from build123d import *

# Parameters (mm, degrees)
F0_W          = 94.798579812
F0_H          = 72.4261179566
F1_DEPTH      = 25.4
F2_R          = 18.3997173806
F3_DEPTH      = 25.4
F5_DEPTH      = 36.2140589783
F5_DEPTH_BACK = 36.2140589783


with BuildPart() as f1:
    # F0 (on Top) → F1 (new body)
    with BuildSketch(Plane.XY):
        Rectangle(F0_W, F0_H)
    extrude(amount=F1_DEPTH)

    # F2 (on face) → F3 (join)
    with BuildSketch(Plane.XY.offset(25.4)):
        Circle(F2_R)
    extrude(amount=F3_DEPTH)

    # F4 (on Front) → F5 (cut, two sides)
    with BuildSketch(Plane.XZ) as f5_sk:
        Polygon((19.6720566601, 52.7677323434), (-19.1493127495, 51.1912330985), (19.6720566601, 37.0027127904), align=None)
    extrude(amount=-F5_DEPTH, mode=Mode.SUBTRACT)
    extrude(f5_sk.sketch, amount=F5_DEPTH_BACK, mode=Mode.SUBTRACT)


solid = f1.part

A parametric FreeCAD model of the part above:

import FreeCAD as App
import Part
import Sketcher
from FreeCAD import Vector
Q = App.Units.Quantity


def add_polygon(sketch, points):
    """Adds a closed chain of lines whose ends are joined by coincident constraints."""
    first, n = sketch.GeometryCount, len(points)
    for a, b in zip(points, points[1:] + points[:1]):
        sketch.addGeometry(Part.LineSegment(App.Vector(*a, 0), App.Vector(*b, 0)), False)
    for i in range(n):
        sketch.addConstraint(Sketcher.Constraint("Coincident", first + i, 2, first + (i + 1) % n, 1))

doc = App.newDocument("Part")
body = doc.addObject("PartDesign::Body", "Body")

sketch1 = body.newObject("Sketcher::SketchObject", "Sketch")
sketch1.AttachmentSupport = (doc.getObject("XY_Plane"), [""])
sketch1.MapMode = "FlatFace"
add_polygon(sketch1, [(-47.39929, 36.213059), (-47.39929, -36.213059), (47.39929, -36.213059), (47.39929, 36.213059)])
sketch1.addConstraint([
    Sketcher.Constraint("Vertical", 0),
    Sketcher.Constraint("Horizontal", 1),
    Sketcher.Constraint("Vertical", 2),
    Sketcher.Constraint("Horizontal", 3),
    Sketcher.Constraint("Symmetric", 0, 2, 2, 2, -1, 1),
    Sketcher.Constraint("DistanceX", 1, 1, 1, 2, 94.79858),
    Sketcher.Constraint("DistanceY", 0, 2, 0, 1, 72.426118),
])
pad1 = body.newObject("PartDesign::Pad", "Pad")
pad1.Profile = sketch1
pad1.Length = Q("1 in")

sketch2 = body.newObject("Sketcher::SketchObject", "Sketch001")
sketch2.AttachmentSupport = (doc.getObject("XY_Plane"), [""])
sketch2.MapMode = "FlatFace"
sketch2.AttachmentOffset = App.Placement(Vector(0, 0, 1 * 25.4), App.Rotation())
sketch2.addGeometry(Part.Circle(Vector(0, 0, 0), Vector(0, 0, 1), 18.399717), False)
sketch2.addConstraint([
    Sketcher.Constraint("Coincident", 0, 3, -1, 1),
    Sketcher.Constraint("Diameter", 0, 36.799435),
])
pad2 = body.newObject("PartDesign::Pad", "Pad001")
pad2.Profile = sketch2
pad2.Length = Q("1 in")

sketch3 = body.newObject("Sketcher::SketchObject", "Sketch002")
sketch3.AttachmentSupport = (doc.getObject("XZ_Plane"), [""])
sketch3.MapMode = "FlatFace"
add_polygon(sketch3, [(19.672057, 52.767732), (-19.149313, 51.191233), (19.672057, 37.002713)])
sketch3.addConstraint([
    Sketcher.Constraint("Vertical", 2),
    Sketcher.Constraint("DistanceY", 2, 1, 2, 2, 15.76502),
    Sketcher.Constraint("DistanceY", 0, 2, 2, 2, 1.576499),
    Sketcher.Constraint("Distance", 1, 41.332951),
    Sketcher.Constraint("DistanceX", 0, 2, -1, 1, 19.149313),
    Sketcher.Constraint("DistanceY", -1, 1, 0, 2, 51.191233),
])
pocket1 = body.newObject("PartDesign::Pocket", "Pocket")
pocket1.Profile = sketch3
pocket1.Type = "ThroughAll"
pocket1.Midplane = True

doc.recompute()
